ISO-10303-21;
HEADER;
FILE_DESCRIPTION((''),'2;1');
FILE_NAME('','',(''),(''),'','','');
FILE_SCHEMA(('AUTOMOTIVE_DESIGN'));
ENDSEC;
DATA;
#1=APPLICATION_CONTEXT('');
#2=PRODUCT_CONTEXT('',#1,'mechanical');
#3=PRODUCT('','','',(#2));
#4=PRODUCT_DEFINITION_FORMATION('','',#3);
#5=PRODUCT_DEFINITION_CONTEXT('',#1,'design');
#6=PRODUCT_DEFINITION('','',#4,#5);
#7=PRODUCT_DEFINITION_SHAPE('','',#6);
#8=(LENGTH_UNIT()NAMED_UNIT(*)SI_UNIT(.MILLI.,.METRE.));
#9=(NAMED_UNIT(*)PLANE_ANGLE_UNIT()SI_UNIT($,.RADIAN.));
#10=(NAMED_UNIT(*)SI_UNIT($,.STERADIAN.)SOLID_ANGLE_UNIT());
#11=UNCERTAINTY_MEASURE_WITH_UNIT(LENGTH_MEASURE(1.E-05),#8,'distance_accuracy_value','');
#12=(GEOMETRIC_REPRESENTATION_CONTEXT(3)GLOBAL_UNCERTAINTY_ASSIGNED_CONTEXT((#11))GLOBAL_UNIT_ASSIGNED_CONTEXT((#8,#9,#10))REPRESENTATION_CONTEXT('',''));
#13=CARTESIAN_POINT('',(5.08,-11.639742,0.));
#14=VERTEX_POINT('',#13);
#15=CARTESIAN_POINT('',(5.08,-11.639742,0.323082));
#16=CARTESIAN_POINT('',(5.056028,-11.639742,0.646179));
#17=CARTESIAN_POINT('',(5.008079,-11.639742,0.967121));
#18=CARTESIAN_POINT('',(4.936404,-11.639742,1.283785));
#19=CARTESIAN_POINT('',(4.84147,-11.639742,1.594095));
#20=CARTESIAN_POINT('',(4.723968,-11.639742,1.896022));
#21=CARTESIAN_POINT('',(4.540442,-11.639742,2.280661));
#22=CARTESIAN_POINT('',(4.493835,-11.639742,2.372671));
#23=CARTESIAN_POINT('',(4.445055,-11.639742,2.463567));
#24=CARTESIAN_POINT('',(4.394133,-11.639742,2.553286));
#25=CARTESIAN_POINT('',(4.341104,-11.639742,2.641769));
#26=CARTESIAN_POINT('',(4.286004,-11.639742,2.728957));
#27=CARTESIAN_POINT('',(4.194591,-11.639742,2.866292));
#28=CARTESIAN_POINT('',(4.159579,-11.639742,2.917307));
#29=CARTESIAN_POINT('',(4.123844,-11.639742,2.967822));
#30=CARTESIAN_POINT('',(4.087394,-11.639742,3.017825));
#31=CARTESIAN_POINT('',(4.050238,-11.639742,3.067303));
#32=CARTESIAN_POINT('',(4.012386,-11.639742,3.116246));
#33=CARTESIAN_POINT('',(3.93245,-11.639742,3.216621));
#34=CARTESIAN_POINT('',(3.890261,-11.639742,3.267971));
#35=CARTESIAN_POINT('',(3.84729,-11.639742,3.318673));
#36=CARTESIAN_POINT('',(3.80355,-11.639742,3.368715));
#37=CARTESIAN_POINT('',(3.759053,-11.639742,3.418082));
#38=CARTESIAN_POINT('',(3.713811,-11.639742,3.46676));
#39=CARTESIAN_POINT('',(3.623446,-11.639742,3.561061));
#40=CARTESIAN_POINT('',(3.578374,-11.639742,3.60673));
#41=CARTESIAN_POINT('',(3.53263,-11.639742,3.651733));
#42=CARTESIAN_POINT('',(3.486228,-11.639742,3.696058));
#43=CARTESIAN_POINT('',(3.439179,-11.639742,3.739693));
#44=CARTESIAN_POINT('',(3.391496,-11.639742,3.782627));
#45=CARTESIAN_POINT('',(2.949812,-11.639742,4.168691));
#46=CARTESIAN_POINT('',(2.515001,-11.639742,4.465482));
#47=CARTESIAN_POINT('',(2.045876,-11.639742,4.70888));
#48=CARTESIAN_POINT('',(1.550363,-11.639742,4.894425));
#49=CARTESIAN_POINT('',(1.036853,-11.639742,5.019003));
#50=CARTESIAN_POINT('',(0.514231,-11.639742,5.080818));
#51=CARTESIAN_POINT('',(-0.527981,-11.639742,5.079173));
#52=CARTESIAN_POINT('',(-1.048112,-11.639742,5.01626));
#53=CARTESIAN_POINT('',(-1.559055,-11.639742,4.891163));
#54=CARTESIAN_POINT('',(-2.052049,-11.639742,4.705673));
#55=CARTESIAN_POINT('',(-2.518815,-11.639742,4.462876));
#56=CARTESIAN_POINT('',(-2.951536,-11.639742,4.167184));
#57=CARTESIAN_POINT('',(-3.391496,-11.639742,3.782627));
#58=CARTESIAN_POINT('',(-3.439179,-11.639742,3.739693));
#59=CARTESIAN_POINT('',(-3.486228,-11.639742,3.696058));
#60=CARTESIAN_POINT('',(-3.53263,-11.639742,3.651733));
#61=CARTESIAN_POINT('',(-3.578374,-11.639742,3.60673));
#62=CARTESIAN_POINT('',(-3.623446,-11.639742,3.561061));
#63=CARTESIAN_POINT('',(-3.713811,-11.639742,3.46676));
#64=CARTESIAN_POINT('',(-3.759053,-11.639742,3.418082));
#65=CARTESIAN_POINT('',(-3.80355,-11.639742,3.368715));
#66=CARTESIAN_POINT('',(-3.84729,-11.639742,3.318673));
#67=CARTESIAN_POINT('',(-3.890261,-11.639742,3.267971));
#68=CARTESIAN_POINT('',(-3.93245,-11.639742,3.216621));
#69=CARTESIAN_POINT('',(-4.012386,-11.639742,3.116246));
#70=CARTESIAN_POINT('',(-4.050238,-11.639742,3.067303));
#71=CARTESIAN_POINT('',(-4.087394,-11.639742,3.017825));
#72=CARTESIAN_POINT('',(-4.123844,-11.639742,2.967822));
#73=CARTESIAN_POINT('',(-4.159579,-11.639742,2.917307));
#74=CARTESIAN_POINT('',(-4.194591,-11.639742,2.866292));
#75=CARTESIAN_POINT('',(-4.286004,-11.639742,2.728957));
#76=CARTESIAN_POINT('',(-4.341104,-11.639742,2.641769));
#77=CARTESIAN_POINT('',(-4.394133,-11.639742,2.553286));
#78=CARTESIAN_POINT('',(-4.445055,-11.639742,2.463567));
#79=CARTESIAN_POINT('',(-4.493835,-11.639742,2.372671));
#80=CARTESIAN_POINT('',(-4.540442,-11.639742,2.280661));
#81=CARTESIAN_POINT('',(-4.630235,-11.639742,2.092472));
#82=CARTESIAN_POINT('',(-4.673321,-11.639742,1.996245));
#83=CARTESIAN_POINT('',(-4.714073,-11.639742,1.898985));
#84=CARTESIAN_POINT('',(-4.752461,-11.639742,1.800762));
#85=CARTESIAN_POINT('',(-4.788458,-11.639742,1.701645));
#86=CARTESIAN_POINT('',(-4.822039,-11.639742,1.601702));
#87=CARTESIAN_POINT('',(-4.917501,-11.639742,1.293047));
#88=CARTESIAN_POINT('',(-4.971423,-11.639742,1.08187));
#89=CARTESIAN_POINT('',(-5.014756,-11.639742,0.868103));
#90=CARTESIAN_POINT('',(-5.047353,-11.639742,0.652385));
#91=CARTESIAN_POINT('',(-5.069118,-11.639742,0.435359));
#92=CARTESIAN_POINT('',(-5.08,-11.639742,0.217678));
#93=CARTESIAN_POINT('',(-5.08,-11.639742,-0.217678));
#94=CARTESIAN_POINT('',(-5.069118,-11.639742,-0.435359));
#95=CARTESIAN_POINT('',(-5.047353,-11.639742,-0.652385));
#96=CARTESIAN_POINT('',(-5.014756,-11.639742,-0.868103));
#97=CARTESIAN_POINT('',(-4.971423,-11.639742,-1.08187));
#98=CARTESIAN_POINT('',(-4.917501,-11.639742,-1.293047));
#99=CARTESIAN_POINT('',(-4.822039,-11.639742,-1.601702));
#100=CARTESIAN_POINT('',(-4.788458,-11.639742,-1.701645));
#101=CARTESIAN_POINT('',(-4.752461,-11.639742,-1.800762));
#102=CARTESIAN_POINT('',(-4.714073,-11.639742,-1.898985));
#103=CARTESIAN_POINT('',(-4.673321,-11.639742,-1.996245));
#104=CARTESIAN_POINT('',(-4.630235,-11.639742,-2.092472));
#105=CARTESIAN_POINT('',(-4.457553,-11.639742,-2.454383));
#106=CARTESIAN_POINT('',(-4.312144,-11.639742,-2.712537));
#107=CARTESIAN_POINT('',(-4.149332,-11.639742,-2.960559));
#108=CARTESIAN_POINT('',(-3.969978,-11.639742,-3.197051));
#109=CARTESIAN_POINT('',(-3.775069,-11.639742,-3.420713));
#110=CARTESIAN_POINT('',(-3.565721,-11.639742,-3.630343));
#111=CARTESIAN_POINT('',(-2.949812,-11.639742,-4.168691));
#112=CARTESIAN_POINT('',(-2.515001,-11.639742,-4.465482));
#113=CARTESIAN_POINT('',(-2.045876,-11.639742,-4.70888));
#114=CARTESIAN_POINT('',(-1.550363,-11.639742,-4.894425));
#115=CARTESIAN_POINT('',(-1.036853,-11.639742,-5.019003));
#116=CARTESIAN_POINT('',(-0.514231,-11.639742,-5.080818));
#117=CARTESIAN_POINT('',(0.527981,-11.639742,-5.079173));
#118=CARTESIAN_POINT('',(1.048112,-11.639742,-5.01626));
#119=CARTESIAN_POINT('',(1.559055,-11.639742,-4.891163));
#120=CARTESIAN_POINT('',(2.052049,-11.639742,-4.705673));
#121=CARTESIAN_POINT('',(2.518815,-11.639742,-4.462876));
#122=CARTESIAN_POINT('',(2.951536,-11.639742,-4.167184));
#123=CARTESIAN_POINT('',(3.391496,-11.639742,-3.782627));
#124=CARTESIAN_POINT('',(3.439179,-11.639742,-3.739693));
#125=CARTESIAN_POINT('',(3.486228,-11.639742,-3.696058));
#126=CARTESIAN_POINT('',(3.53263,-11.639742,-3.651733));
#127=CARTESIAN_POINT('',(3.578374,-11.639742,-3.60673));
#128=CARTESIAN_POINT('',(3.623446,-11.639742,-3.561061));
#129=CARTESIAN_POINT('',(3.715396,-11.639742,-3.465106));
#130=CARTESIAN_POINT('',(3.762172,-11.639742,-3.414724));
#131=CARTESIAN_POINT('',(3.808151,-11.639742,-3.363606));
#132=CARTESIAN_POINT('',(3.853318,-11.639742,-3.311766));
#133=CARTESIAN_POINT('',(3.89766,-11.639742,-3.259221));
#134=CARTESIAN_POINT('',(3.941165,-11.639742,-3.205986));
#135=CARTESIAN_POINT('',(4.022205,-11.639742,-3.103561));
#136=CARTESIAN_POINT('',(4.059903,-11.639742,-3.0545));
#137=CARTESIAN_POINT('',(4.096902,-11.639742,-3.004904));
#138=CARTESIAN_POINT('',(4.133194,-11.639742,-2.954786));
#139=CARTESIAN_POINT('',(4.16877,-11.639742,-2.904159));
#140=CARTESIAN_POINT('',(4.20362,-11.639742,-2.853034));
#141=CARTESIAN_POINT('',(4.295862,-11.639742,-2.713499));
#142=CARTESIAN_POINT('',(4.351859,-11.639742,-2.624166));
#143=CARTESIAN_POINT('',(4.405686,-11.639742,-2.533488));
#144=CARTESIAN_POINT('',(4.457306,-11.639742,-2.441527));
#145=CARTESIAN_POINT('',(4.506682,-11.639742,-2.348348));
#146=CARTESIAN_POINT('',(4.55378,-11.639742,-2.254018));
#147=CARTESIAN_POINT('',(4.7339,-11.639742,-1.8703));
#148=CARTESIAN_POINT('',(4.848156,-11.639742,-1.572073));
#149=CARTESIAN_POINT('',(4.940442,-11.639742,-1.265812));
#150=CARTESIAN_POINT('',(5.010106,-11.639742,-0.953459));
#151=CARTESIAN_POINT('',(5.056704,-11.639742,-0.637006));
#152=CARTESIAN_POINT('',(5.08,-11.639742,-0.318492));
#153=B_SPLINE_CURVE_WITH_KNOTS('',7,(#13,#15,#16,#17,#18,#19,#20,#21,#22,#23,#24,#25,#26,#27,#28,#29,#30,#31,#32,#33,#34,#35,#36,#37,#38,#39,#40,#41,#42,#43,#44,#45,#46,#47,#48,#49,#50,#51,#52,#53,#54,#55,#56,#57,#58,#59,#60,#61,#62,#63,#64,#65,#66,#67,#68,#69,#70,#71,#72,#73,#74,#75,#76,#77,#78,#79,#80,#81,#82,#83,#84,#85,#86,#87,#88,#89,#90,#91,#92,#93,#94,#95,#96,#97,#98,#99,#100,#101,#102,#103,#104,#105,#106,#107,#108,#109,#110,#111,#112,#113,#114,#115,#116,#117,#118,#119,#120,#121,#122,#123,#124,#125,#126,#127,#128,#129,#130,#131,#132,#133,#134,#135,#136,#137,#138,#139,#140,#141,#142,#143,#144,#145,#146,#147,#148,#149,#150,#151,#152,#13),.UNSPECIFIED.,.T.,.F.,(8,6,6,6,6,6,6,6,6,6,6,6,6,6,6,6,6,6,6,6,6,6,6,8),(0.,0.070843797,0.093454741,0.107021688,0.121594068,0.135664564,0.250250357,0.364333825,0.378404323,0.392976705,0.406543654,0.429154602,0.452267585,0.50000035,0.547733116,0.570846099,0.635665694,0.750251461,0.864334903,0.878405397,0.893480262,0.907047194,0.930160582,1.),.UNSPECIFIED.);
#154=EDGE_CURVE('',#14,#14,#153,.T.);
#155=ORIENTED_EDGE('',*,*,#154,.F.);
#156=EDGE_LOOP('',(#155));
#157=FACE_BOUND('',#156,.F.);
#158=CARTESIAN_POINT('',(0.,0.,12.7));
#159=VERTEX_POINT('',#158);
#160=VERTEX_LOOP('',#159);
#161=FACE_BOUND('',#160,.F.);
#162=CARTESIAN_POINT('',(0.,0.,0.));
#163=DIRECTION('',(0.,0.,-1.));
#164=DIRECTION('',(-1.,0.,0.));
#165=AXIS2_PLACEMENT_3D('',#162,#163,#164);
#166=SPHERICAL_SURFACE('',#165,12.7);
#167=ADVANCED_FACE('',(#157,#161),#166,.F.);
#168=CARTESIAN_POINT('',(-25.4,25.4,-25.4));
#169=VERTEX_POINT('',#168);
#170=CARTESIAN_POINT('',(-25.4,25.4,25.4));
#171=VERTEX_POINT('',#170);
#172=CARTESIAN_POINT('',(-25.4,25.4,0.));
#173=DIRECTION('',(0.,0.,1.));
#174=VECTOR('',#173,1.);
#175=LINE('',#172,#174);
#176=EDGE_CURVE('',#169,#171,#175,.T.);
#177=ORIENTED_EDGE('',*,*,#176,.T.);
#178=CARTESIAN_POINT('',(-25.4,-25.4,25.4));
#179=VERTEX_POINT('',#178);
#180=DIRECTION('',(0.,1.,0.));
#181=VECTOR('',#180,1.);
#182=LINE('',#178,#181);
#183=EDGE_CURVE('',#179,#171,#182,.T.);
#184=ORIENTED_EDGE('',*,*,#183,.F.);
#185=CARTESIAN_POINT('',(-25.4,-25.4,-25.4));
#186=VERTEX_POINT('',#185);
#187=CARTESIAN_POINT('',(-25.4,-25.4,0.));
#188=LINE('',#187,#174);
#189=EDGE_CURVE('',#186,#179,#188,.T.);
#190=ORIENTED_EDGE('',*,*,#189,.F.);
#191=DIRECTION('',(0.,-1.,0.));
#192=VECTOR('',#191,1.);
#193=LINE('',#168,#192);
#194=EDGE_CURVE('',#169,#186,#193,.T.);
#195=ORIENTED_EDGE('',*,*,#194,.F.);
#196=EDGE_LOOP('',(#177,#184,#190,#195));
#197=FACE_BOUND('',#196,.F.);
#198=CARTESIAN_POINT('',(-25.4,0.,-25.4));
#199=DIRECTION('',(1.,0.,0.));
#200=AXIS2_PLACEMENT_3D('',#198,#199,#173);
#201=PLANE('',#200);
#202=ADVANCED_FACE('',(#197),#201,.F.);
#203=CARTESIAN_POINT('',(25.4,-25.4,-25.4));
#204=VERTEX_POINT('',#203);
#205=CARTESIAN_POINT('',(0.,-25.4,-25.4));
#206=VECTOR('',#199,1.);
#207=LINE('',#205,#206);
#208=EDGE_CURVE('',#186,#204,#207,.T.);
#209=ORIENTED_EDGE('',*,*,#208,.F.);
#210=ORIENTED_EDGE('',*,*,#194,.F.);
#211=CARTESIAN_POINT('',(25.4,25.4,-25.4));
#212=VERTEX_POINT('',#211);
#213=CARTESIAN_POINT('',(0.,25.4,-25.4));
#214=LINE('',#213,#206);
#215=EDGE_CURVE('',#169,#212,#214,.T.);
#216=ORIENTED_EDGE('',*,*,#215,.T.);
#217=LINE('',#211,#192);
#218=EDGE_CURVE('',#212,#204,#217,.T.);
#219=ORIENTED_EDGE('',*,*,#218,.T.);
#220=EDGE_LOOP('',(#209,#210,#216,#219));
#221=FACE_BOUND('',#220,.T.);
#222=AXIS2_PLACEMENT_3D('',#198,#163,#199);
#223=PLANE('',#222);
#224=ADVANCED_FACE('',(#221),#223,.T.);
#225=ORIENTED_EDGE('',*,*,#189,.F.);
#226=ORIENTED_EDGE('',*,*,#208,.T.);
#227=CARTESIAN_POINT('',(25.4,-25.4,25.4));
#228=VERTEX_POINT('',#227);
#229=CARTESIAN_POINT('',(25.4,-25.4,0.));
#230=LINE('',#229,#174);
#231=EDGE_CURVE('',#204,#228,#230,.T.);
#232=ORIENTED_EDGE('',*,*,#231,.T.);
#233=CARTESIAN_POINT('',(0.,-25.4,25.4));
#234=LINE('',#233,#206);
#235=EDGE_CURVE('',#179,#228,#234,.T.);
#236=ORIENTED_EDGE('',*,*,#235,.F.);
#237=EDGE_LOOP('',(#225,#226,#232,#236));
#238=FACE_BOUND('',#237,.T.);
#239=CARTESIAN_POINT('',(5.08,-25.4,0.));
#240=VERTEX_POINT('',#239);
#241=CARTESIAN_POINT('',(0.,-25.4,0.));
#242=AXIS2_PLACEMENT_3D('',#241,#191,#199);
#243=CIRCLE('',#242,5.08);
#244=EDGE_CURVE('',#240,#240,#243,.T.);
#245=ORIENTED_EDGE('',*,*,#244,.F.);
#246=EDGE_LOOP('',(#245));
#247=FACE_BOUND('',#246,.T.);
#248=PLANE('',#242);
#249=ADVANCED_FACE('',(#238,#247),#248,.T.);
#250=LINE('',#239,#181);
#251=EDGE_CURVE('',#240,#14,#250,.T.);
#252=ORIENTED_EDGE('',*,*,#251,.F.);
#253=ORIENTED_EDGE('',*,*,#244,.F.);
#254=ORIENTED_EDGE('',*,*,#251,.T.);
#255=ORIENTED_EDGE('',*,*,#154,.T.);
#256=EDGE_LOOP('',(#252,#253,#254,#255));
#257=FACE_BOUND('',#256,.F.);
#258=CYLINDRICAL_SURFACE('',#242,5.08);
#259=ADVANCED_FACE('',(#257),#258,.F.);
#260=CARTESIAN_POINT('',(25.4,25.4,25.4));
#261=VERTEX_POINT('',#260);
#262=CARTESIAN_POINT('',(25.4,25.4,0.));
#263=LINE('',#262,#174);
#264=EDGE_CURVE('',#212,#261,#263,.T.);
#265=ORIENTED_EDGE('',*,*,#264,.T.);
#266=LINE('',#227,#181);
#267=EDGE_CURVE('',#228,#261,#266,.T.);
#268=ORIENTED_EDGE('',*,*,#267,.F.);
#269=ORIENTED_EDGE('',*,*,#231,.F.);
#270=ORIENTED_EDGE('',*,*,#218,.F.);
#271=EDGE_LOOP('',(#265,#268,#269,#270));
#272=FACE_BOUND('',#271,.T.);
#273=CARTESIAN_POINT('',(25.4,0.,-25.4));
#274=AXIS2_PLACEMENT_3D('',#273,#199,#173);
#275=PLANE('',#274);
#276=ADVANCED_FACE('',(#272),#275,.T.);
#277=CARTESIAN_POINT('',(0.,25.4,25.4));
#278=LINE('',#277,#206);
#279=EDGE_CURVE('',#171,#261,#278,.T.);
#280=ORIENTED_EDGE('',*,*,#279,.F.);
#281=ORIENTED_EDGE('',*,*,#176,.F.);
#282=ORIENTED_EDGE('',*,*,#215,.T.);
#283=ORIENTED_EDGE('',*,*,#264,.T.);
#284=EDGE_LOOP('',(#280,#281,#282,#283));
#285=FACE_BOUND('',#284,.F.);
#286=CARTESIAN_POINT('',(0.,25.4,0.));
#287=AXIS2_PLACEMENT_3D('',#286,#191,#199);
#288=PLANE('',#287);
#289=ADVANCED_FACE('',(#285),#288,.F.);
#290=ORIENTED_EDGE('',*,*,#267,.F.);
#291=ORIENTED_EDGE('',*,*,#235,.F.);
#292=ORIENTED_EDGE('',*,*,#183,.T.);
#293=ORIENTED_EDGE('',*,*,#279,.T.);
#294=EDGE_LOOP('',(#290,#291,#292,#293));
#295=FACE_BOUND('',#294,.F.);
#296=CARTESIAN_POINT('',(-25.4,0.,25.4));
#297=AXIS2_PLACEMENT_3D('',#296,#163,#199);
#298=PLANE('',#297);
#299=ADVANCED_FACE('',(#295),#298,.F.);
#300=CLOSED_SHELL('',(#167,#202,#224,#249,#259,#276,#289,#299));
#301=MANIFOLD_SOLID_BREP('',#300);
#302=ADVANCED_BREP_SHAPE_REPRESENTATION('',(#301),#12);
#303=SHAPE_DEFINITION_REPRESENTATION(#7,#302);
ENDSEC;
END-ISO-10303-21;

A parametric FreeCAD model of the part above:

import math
import FreeCAD as App
import Part
import Sketcher
from FreeCAD import Vector
Q = App.Units.Quantity


def add_polygon(sketch, points):
    """Adds a closed chain of lines whose ends are joined by coincident constraints."""
    first, n = sketch.GeometryCount, len(points)
    for a, b in zip(points, points[1:] + points[:1]):
        sketch.addGeometry(Part.LineSegment(App.Vector(*a, 0), App.Vector(*b, 0)), False)
    for i in range(n):
        sketch.addConstraint(Sketcher.Constraint("Coincident", first + i, 2, first + (i + 1) % n, 1))

doc = App.newDocument("Part")
body = doc.addObject("PartDesign::Body", "Body")

sketch1 = doc.addObject("Sketcher::SketchObject", "Sketch")
body.addObject(sketch1)
sketch1.AttachmentSupport = (doc.XZ_Plane, [""])
sketch1.MapMode = "FlatFace"
add_polygon(sketch1, [(-25, 25), (-25, -25), (25, -25), (25, 25)])
sketch1.addConstraint([
    Sketcher.Constraint("Vertical", 0),
    Sketcher.Constraint("Horizontal", 1),
    Sketcher.Constraint("Vertical", 2),
    Sketcher.Constraint("Horizontal", 3),
    Sketcher.Constraint("Symmetric", 0, 2, 2, 2, -1, 1),
    Sketcher.Constraint("Equal", 3, 0),
    Sketcher.Constraint("DistanceX", 1, 1, 1, 2, Q("2 in")),
])
pad1 = doc.addObject("PartDesign::Pad", "Pad")
body.addObject(pad1)
pad1.Profile = sketch1
pad1.Length = Q("2 in")
pad1.Midplane = True

sketch2 = doc.addObject("Sketcher::SketchObject", "Sketch001")
body.addObject(sketch2)
sketch2.AttachmentSupport = (doc.XZ_Plane, [""])
sketch2.MapMode = "FlatFace"
sketch2.addGeometry([
    Part.LineSegment(Vector(0, -13, 0), Vector(0, 13, 0)),
    Part.ArcOfCircle(Part.Circle(Vector(0, 0, 0), Vector(0, 0, 1), 13), math.radians(90), math.radians(270)),
], False)
sketch2.addConstraint([
    Sketcher.Constraint("Coincident", 0, 1, 1, 2),
    Sketcher.Constraint("Coincident", 1, 1, 0, 2),
    Sketcher.Constraint("Vertical", 0),
    Sketcher.Constraint("Coincident", 1, 3, -1, 1),
    Sketcher.Constraint("PointOnObject", 0, 1, -2),
    Sketcher.Constraint("Radius", 1, Q("0.5 in")),
])
groove = doc.addObject("PartDesign::Groove", "Groove")
body.addObject(groove)
groove.Profile = sketch2
groove.ReferenceAxis = (sketch2, ["V_Axis"])
groove.Angle = 360

sketch3 = doc.addObject("Sketcher::SketchObject", "Sketch002")
body.addObject(sketch3)
sketch3.AttachmentSupport = (doc.XZ_Plane, [""])
sketch3.MapMode = "FlatFace"
sketch3.AttachmentOffset = App.Placement(Vector(0, 0, 1 * 25.4), App.Rotation())
sketch3.addGeometry(Part.Circle(Vector(0, 0, 0), Vector(0, 0, 1), 5), False)
sketch3.addConstraint([
    Sketcher.Constraint("Coincident", 0, 3, -1, 1),
    Sketcher.Constraint("Diameter", 0, Q("0.4 in")),
])
pocket1 = doc.addObject("PartDesign::Pocket", "Pocket")
body.addObject(pocket1)
pocket1.Profile = sketch3
pocket1.Length = Q("1 in")

doc.recompute()
